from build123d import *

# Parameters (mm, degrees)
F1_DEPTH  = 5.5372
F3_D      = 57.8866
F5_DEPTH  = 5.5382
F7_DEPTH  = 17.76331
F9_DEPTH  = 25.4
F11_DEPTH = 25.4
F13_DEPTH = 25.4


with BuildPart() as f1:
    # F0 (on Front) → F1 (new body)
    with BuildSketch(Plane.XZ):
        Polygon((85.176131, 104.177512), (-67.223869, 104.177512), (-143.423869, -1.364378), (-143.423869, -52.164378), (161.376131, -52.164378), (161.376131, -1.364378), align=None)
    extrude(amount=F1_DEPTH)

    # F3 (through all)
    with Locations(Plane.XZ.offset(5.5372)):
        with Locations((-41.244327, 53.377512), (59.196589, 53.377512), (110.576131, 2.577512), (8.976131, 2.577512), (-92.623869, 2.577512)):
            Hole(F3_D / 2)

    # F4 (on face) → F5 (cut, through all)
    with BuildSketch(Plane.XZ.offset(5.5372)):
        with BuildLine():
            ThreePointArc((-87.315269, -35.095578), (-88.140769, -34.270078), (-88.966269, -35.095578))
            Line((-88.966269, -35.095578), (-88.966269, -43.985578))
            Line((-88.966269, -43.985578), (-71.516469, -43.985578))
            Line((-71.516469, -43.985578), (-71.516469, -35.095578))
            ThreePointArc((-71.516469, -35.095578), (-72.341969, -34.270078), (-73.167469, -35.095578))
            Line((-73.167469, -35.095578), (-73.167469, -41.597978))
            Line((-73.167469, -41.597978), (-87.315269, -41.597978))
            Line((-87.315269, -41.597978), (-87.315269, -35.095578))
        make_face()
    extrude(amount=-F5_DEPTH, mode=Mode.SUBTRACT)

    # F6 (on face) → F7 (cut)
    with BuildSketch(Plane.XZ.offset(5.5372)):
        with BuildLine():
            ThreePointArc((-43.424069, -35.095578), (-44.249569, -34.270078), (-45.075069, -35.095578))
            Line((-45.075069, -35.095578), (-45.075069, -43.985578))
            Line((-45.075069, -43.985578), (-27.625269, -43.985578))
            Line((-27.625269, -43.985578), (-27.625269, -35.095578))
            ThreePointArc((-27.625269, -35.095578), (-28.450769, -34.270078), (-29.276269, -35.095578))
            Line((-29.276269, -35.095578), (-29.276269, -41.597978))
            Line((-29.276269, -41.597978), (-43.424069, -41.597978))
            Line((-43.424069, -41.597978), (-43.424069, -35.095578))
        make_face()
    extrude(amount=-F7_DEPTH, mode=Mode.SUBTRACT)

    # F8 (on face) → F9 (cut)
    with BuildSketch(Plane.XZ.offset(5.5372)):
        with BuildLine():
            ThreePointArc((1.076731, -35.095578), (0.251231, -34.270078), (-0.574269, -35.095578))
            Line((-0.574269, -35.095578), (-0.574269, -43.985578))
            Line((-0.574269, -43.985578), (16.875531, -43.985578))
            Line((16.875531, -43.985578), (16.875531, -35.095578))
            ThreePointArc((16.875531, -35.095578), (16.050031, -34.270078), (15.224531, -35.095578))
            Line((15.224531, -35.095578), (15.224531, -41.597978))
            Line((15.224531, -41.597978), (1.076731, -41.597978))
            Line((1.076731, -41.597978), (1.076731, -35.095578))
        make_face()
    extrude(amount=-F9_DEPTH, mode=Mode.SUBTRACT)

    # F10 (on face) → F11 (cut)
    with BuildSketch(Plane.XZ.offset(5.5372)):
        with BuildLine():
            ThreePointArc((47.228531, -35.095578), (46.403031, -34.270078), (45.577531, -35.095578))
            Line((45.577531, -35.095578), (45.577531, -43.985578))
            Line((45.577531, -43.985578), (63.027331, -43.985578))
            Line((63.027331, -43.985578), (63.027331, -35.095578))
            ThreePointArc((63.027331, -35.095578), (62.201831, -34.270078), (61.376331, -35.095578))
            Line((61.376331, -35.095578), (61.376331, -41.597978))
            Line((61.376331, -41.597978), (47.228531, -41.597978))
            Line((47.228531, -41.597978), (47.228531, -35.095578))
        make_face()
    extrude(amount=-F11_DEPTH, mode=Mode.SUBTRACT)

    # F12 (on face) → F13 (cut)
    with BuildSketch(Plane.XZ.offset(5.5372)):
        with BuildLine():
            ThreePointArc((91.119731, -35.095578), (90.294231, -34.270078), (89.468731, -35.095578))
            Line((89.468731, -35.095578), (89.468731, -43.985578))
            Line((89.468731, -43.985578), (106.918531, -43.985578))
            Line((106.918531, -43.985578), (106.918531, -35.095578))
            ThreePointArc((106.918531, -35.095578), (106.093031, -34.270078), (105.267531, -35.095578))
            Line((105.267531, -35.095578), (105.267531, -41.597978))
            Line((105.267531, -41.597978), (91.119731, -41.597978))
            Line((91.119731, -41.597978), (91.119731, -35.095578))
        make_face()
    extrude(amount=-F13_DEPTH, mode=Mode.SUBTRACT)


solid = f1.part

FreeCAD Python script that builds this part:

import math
import FreeCAD as App
import Part
import Sketcher
Q = App.Units.Quantity


def add_polygon(sketch, points):
    """Adds a closed chain of lines whose ends are joined by coincident constraints."""
    first, n = sketch.GeometryCount, len(points)
    for a, b in zip(points, points[1:] + points[:1]):
        sketch.addGeometry(Part.LineSegment(App.Vector(*a, 0), App.Vector(*b, 0)), False)
    for i in range(n):
        sketch.addConstraint(Sketcher.Constraint("Coincident", first + i, 2, first + (i + 1) % n, 1))

doc = App.newDocument("Part")
body = doc.addObject("PartDesign::Body", "Body")

# Sketch on XZ plane
sketch1 = body.newObject("Sketcher::SketchObject", "Sketch")
sketch1.AttachmentSupport = (doc.getObject("XZ_Plane"), [""])
sketch1.MapMode = "FlatFace"
add_polygon(sketch1, [(85, 104), (-67, 104), (-143, -1), (-143, -52), (161, -52), (161, -1)])  # lines 0-5
sketch1.addConstraint(Sketcher.Constraint("Horizontal", 0))
sketch1.addConstraint(Sketcher.Constraint("Vertical", 2))
sketch1.addConstraint(Sketcher.Constraint("Horizontal", 3))
sketch1.addConstraint(Sketcher.Constraint("Vertical", 4))
sketch1.addConstraint(Sketcher.Constraint("Horizontal", 1, 2, 4, 2))
sketch1.addConstraint(Sketcher.Constraint("Equal", 1, 5))
sketch1.addConstraint(Sketcher.Constraint("DistanceX", 0, 2, 0, 1, Q("6 in")))
sketch1.addConstraint(Sketcher.Constraint("DistanceX", 3, 1, 3, 2, Q("12 in")))
sketch1.addConstraint(Sketcher.Constraint("DistanceY", 2, 2, 2, 1, Q("2 in")))
sketch1.addConstraint(Sketcher.Constraint("Distance", 1, Q("5.125 in")))
sketch1.addConstraint(Sketcher.Constraint("DistanceX", 0, 2, -1, 1, 67.223869))
sketch1.addConstraint(Sketcher.Constraint("DistanceY", -1, 1, 0, 2, 104.177512))
pad1 = body.newObject("PartDesign::Pad", "Pad")
pad1.Profile = sketch1
pad1.Length = Q("0.218 in")

# Sketch on XZ plane
sketch2 = body.newObject("Sketcher::SketchObject", "Sketch001")
sketch2.AttachmentSupport = (doc.getObject("XZ_Plane"), [""])
sketch2.MapMode = "FlatFace"
sketch2.AttachmentOffset = App.Placement(App.Vector(0, 0, 0.218 * 25.4), App.Rotation())
sketch2.addGeometry(Part.Circle(App.Vector(-41, 53, 0), App.Vector(0, 0, 1), 29), False)
sketch2.addGeometry(Part.Circle(App.Vector(59, 53, 0), App.Vector(0, 0, 1), 29), False)
sketch2.addGeometry(Part.Circle(App.Vector(111, 3, 0), App.Vector(0, 0, 1), 29), False)
sketch2.addGeometry(Part.Circle(App.Vector(9, 3, 0), App.Vector(0, 0, 1), 29), False)
sketch2.addGeometry(Part.Circle(App.Vector(-93, 3, 0), App.Vector(0, 0, 1), 29), False)
sketch2.addConstraint(Sketcher.Constraint("Equal", 0, 1))
sketch2.addConstraint(Sketcher.Constraint("Equal", 1, 2))
sketch2.addConstraint(Sketcher.Constraint("Equal", 2, 3))
sketch2.addConstraint(Sketcher.Constraint("Equal", 3, 4))
sketch2.addConstraint(Sketcher.Constraint("Horizontal", 0, 3, 1, 3))
sketch2.addConstraint(Sketcher.Constraint("Horizontal", 2, 3, 3, 3))
sketch2.addConstraint(Sketcher.Constraint("Horizontal", 3, 3, 4, 3))
sketch2.addConstraint(Sketcher.Constraint("Diameter", 0, Q("2.279 in")))
sketch2.addConstraint(Sketcher.Constraint("DistanceY", 2, 3, 1, 3, Q("2 in")))
sketch2.addConstraint(Sketcher.Constraint("DistanceX", 3, 3, 2, 3, Q("4 in")))
sketch2.addConstraint(Sketcher.Constraint("DistanceX", 4, 3, 3, 3, Q("4 in")))
sketch2.addConstraint(Sketcher.Constraint("DistanceX", -1, 1, 1, 3, 59.196589))
sketch2.addConstraint(Sketcher.Constraint("DistanceX", -1, 1, 2, 3, 110.576131))
sketch2.addConstraint(Sketcher.Constraint("DistanceY", -1, 1, 2, 3, 2.577512))
sketch2.addConstraint(Sketcher.Constraint("DistanceX", 0, 3, 2, 3, 151.820458))
doc.recompute()
hole = body.newObject("PartDesign::Hole", "Hole")
hole.Profile = sketch2
hole.ThreadType = "None"
hole.Diameter = Q("2.279 in")
hole.DepthType = "ThroughAll"

# Sketch on XZ plane
sketch3 = body.newObject("Sketcher::SketchObject", "Sketch002")
sketch3.AttachmentSupport = (doc.getObject("XZ_Plane"), [""])
sketch3.MapMode = "FlatFace"
sketch3.AttachmentOffset = App.Placement(App.Vector(0, 0, 0.218 * 25.4), App.Rotation())
sketch3.addGeometry(Part.ArcOfCircle(Part.Circle(App.Vector(-88.1, -35.1, 0), App.Vector(0, 0, 1), 0.8), math.radians(0), math.radians(180)), False)
sketch3.addGeometry(Part.LineSegment(App.Vector(-89, -35.1, 0), App.Vector(-89, -44, 0)), False)
sketch3.addGeometry(Part.LineSegment(App.Vector(-89, -44, 0), App.Vector(-71.5, -44, 0)), False)
sketch3.addGeometry(Part.LineSegment(App.Vector(-71.5, -44, 0), App.Vector(-71.5, -35.1, 0)), False)
sketch3.addGeometry(Part.ArcOfCircle(Part.Circle(App.Vector(-72.3, -35.1, 0), App.Vector(0, 0, 1), 0.8), math.radians(0), math.radians(180)), False)
sketch3.addGeometry(Part.LineSegment(App.Vector(-73.2, -35.1, 0), App.Vector(-73.2, -41.6, 0)), False)
sketch3.addGeometry(Part.LineSegment(App.Vector(-73.2, -41.6, 0), App.Vector(-87.3, -41.6, 0)), False)
sketch3.addGeometry(Part.LineSegment(App.Vector(-87.3, -41.6, 0), App.Vector(-87.3, -35.1, 0)), False)
sketch3.addConstraint(Sketcher.Constraint("Tangent", 0, 2, 1, 1))
sketch3.addConstraint(Sketcher.Constraint("Coincident", 1, 2, 2, 1))
sketch3.addConstraint(Sketcher.Constraint("Coincident", 2, 2, 3, 1))
sketch3.addConstraint(Sketcher.Constraint("Tangent", 3, 2, 4, 1))
sketch3.addConstraint(Sketcher.Constraint("Tangent", 4, 2, 5, 1))
sketch3.addConstraint(Sketcher.Constraint("Coincident", 5, 2, 6, 1))
sketch3.addConstraint(Sketcher.Constraint("Coincident", 6, 2, 7, 1))
sketch3.addConstraint(Sketcher.Constraint("Tangent", 7, 2, 0, 1))
sketch3.addConstraint(Sketcher.Constraint("Vertical", 1))
sketch3.addConstraint(Sketcher.Constraint("Horizontal", 2))
sketch3.addConstraint(Sketcher.Constraint("Vertical", 3))
sketch3.addConstraint(Sketcher.Constraint("Vertical", 5))
sketch3.addConstraint(Sketcher.Constraint("Horizontal", 6))
sketch3.addConstraint(Sketcher.Constraint("Vertical", 7))
sketch3.addConstraint(Sketcher.Constraint("Equal", 0, 4))
sketch3.addConstraint(Sketcher.Constraint("Horizontal", 0, 3, 4, 3))
sketch3.addConstraint(Sketcher.Constraint("DistanceY", 1, 2, 1, 1, Q("0.35 in")))
sketch3.addConstraint(Sketcher.Constraint("Radius", 0, Q("0.0325 in")))
sketch3.addConstraint(Sketcher.Constraint("DistanceX", 2, 1, 2, 2, Q("0.687 in")))
sketch3.addConstraint(Sketcher.Constraint("DistanceY", 5, 2, 5, 1, Q("0.256 in")))
sketch3.addConstraint(Sketcher.Constraint("DistanceX", 0, 3, -1, 1, 88.140769))
sketch3.addConstraint(Sketcher.Constraint("DistanceY", 0, 3, -1, 1, 35.095578))
pocket1 = body.newObject("PartDesign::Pocket", "Pocket")
pocket1.Profile = sketch3
pocket1.Type = "ThroughAll"

# Sketch on XZ plane
sketch4 = body.newObject("Sketcher::SketchObject", "Sketch003")
sketch4.AttachmentSupport = (doc.getObject("XZ_Plane"), [""])
sketch4.MapMode = "FlatFace"
sketch4.AttachmentOffset = App.Placement(App.Vector(0, 0, 0.218 * 25.4), App.Rotation())
sketch4.addGeometry(Part.ArcOfCircle(Part.Circle(App.Vector(-44.2, -35.1, 0), App.Vector(0, 0, 1), 0.8), math.radians(0), math.radians(180)), False)
sketch4.addGeometry(Part.LineSegment(App.Vector(-45.1, -35.1, 0), App.Vector(-45.1, -44, 0)), False)
sketch4.addGeometry(Part.LineSegment(App.Vector(-45.1, -44, 0), App.Vector(-27.6, -44, 0)), False)
sketch4.addGeometry(Part.LineSegment(App.Vector(-27.6, -44, 0), App.Vector(-27.6, -35.1, 0)), False)
sketch4.addGeometry(Part.ArcOfCircle(Part.Circle(App.Vector(-28.5, -35.1, 0), App.Vector(0, 0, 1), 0.8), math.radians(0), math.radians(180)), False)
sketch4.addGeometry(Part.LineSegment(App.Vector(-29.3, -35.1, 0), App.Vector(-29.3, -41.6, 0)), False)
sketch4.addGeometry(Part.LineSegment(App.Vector(-29.3, -41.6, 0), App.Vector(-43.4, -41.6, 0)), False)
sketch4.addGeometry(Part.LineSegment(App.Vector(-43.4, -41.6, 0), App.Vector(-43.4, -35.1, 0)), False)
sketch4.addConstraint(Sketcher.Constraint("Tangent", 0, 2, 1, 1))
sketch4.addConstraint(Sketcher.Constraint("Coincident", 1, 2, 2, 1))
sketch4.addConstraint(Sketcher.Constraint("Coincident", 2, 2, 3, 1))
sketch4.addConstraint(Sketcher.Constraint("Tangent", 3, 2, 4, 1))
sketch4.addConstraint(Sketcher.Constraint("Tangent", 4, 2, 5, 1))
sketch4.addConstraint(Sketcher.Constraint("Coincident", 5, 2, 6, 1))
sketch4.addConstraint(Sketcher.Constraint("Coincident", 6, 2, 7, 1))
sketch4.addConstraint(Sketcher.Constraint("Tangent", 7, 2, 0, 1))
sketch4.addConstraint(Sketcher.Constraint("Vertical", 1))
sketch4.addConstraint(Sketcher.Constraint("Horizontal", 2))
sketch4.addConstraint(Sketcher.Constraint("Vertical", 3))
sketch4.addConstraint(Sketcher.Constraint("Vertical", 5))
sketch4.addConstraint(Sketcher.Constraint("Horizontal", 6))
sketch4.addConstraint(Sketcher.Constraint("Vertical", 7))
sketch4.addConstraint(Sketcher.Constraint("Equal", 0, 4))
sketch4.addConstraint(Sketcher.Constraint("Horizontal", 0, 3, 4, 3))
sketch4.addConstraint(Sketcher.Constraint("DistanceY", 1, 2, 1, 1, Q("0.35 in")))
sketch4.addConstraint(Sketcher.Constraint("Radius", 0, Q("0.0325 in")))
sketch4.addConstraint(Sketcher.Constraint("DistanceX", 2, 1, 2, 2, Q("0.687 in")))
sketch4.addConstraint(Sketcher.Constraint("DistanceY", 5, 2, 5, 1, Q("0.256 in")))
sketch4.addConstraint(Sketcher.Constraint("DistanceX", 0, 3, -1, 1, 44.249569))
sketch4.addConstraint(Sketcher.Constraint("DistanceY", 0, 3, -1, 1, 35.095578))
pocket2 = body.newObject("PartDesign::Pocket", "Pocket001")
pocket2.Profile = sketch4
pocket2.Length = 17.76331

# Sketch on XZ plane
sketch5 = body.newObject("Sketcher::SketchObject", "Sketch004")
sketch5.AttachmentSupport = (doc.getObject("XZ_Plane"), [""])
sketch5.MapMode = "FlatFace"
sketch5.AttachmentOffset = App.Placement(App.Vector(0, 0, 0.218 * 25.4), App.Rotation())
sketch5.addGeometry(Part.ArcOfCircle(Part.Circle(App.Vector(0.3, -35.1, 0), App.Vector(0, 0, 1), 0.8), math.radians(0), math.radians(180)), False)
sketch5.addGeometry(Part.LineSegment(App.Vector(-0.6, -35.1, 0), App.Vector(-0.6, -44, 0)), False)
sketch5.addGeometry(Part.LineSegment(App.Vector(-0.6, -44, 0), App.Vector(16.9, -44, 0)), False)
sketch5.addGeometry(Part.LineSegment(App.Vector(16.9, -44, 0), App.Vector(16.9, -35.1, 0)), False)
sketch5.addGeometry(Part.ArcOfCircle(Part.Circle(App.Vector(16.1, -35.1, 0), App.Vector(0, 0, 1), 0.8), math.radians(0), math.radians(180)), False)
sketch5.addGeometry(Part.LineSegment(App.Vector(15.2, -35.1, 0), App.Vector(15.2, -41.6, 0)), False)
sketch5.addGeometry(Part.LineSegment(App.Vector(15.2, -41.6, 0), App.Vector(1.1, -41.6, 0)), False)
sketch5.addGeometry(Part.LineSegment(App.Vector(1.1, -41.6, 0), App.Vector(1.1, -35.1, 0)), False)
sketch5.addConstraint(Sketcher.Constraint("Tangent", 0, 2, 1, 1))
sketch5.addConstraint(Sketcher.Constraint("Coincident", 1, 2, 2, 1))
sketch5.addConstraint(Sketcher.Constraint("Coincident", 2, 2, 3, 1))
sketch5.addConstraint(Sketcher.Constraint("Tangent", 3, 2, 4, 1))
sketch5.addConstraint(Sketcher.Constraint("Tangent", 4, 2, 5, 1))
sketch5.addConstraint(Sketcher.Constraint("Coincident", 5, 2, 6, 1))
sketch5.addConstraint(Sketcher.Constraint("Coincident", 6, 2, 7, 1))
sketch5.addConstraint(Sketcher.Constraint("Tangent", 7, 2, 0, 1))
sketch5.addConstraint(Sketcher.Constraint("Vertical", 1))
sketch5.addConstraint(Sketcher.Constraint("Horizontal", 2))
sketch5.addConstraint(Sketcher.Constraint("Vertical", 3))
sketch5.addConstraint(Sketcher.Constraint("Vertical", 5))
sketch5.addConstraint(Sketcher.Constraint("Horizontal", 6))
sketch5.addConstraint(Sketcher.Constraint("Vertical", 7))
sketch5.addConstraint(Sketcher.Constraint("Equal", 0, 4))
sketch5.addConstraint(Sketcher.Constraint("Horizontal", 0, 3, 4, 3))
sketch5.addConstraint(Sketcher.Constraint("DistanceY", 1, 2, 1, 1, Q("0.35 in")))
sketch5.addConstraint(Sketcher.Constraint("Radius", 0, Q("0.0325 in")))
sketch5.addConstraint(Sketcher.Constraint("DistanceX", 2, 1, 2, 2, Q("0.687 in")))
sketch5.addConstraint(Sketcher.Constraint("DistanceY", 5, 2, 5, 1, Q("0.256 in")))
sketch5.addConstraint(Sketcher.Constraint("DistanceX", -1, 1, 0, 3, 0.251231))
sketch5.addConstraint(Sketcher.Constraint("DistanceY", 0, 3, -1, 1, 35.095578))
pocket3 = body.newObject("PartDesign::Pocket", "Pocket002")
pocket3.Profile = sketch5
pocket3.Length = Q("1 in")

# Sketch on XZ plane
sketch6 = body.newObject("Sketcher::SketchObject", "Sketch005")
sketch6.AttachmentSupport = (doc.getObject("XZ_Plane"), [""])
sketch6.MapMode = "FlatFace"
sketch6.AttachmentOffset = App.Placement(App.Vector(0, 0, 0.218 * 25.4), App.Rotation())
sketch6.addGeometry(Part.ArcOfCircle(Part.Circle(App.Vector(46.4, -35.1, 0), App.Vector(0, 0, 1), 0.8), math.radians(0), math.radians(180)), False)
sketch6.addGeometry(Part.LineSegment(App.Vector(45.6, -35.1, 0), App.Vector(45.6, -44, 0)), False)
sketch6.addGeometry(Part.LineSegment(App.Vector(45.6, -44, 0), App.Vector(63, -44, 0)), False)
sketch6.addGeometry(Part.LineSegment(App.Vector(63, -44, 0), App.Vector(63, -35.1, 0)), False)
sketch6.addGeometry(Part.ArcOfCircle(Part.Circle(App.Vector(62.2, -35.1, 0), App.Vector(0, 0, 1), 0.8), math.radians(0), math.radians(180)), False)
sketch6.addGeometry(Part.LineSegment(App.Vector(61.4, -35.1, 0), App.Vector(61.4, -41.6, 0)), False)
sketch6.addGeometry(Part.LineSegment(App.Vector(61.4, -41.6, 0), App.Vector(47.2, -41.6, 0)), False)
sketch6.addGeometry(Part.LineSegment(App.Vector(47.2, -41.6, 0), App.Vector(47.2, -35.1, 0)), False)
sketch6.addConstraint(Sketcher.Constraint("Tangent", 0, 2, 1, 1))
sketch6.addConstraint(Sketcher.Constraint("Coincident", 1, 2, 2, 1))
sketch6.addConstraint(Sketcher.Constraint("Coincident", 2, 2, 3, 1))
sketch6.addConstraint(Sketcher.Constraint("Tangent", 3, 2, 4, 1))
sketch6.addConstraint(Sketcher.Constraint("Tangent", 4, 2, 5, 1))
sketch6.addConstraint(Sketcher.Constraint("Coincident", 5, 2, 6, 1))
sketch6.addConstraint(Sketcher.Constraint("Coincident", 6, 2, 7, 1))
sketch6.addConstraint(Sketcher.Constraint("Tangent", 7, 2, 0, 1))
sketch6.addConstraint(Sketcher.Constraint("Vertical", 1))
sketch6.addConstraint(Sketcher.Constraint("Horizontal", 2))
sketch6.addConstraint(Sketcher.Constraint("Vertical", 3))
sketch6.addConstraint(Sketcher.Constraint("Vertical", 5))
sketch6.addConstraint(Sketcher.Constraint("Horizontal", 6))
sketch6.addConstraint(Sketcher.Constraint("Vertical", 7))
sketch6.addConstraint(Sketcher.Constraint("Equal", 0, 4))
sketch6.addConstraint(Sketcher.Constraint("Horizontal", 0, 3, 4, 3))
sketch6.addConstraint(Sketcher.Constraint("DistanceY", 1, 2, 1, 1, Q("0.35 in")))
sketch6.addConstraint(Sketcher.Constraint("Radius", 0, Q("0.0325 in")))
sketch6.addConstraint(Sketcher.Constraint("DistanceX", 2, 1, 2, 2, Q("0.687 in")))
sketch6.addConstraint(Sketcher.Constraint("DistanceY", 5, 2, 5, 1, Q("0.256 in")))
sketch6.addConstraint(Sketcher.Constraint("DistanceX", -1, 1, 0, 3, 46.403031))
sketch6.addConstraint(Sketcher.Constraint("DistanceY", 0, 3, -1, 1, 35.095578))
pocket4 = body.newObject("PartDesign::Pocket", "Pocket003")
pocket4.Profile = sketch6
pocket4.Length = Q("1 in")

# Sketch on XZ plane
sketch7 = body.newObject("Sketcher::SketchObject", "Sketch006")
sketch7.AttachmentSupport = (doc.getObject("XZ_Plane"), [""])
sketch7.MapMode = "FlatFace"
sketch7.AttachmentOffset = App.Placement(App.Vector(0, 0, 0.218 * 25.4), App.Rotation())
sketch7.addGeometry(Part.ArcOfCircle(Part.Circle(App.Vector(90.3, -35.1, 0), App.Vector(0, 0, 1), 0.8), math.radians(0), math.radians(180)), False)
sketch7.addGeometry(Part.LineSegment(App.Vector(89.5, -35.1, 0), App.Vector(89.5, -44, 0)), False)
sketch7.addGeometry(Part.LineSegment(App.Vector(89.5, -44, 0), App.Vector(106.9, -44, 0)), False)
sketch7.addGeometry(Part.LineSegment(App.Vector(106.9, -44, 0), App.Vector(106.9, -35.1, 0)), False)
sketch7.addGeometry(Part.ArcOfCircle(Part.Circle(App.Vector(106.1, -35.1, 0), App.Vector(0, 0, 1), 0.8), math.radians(0), math.radians(180)), False)
sketch7.addGeometry(Part.LineSegment(App.Vector(105.3, -35.1, 0), App.Vector(105.3, -41.6, 0)), False)
sketch7.addGeometry(Part.LineSegment(App.Vector(105.3, -41.6, 0), App.Vector(91.1, -41.6, 0)), False)
sketch7.addGeometry(Part.LineSegment(App.Vector(91.1, -41.6, 0), App.Vector(91.1, -35.1, 0)), False)
sketch7.addConstraint(Sketcher.Constraint("Tangent", 0, 2, 1, 1))
sketch7.addConstraint(Sketcher.Constraint("Coincident", 1, 2, 2, 1))
sketch7.addConstraint(Sketcher.Constraint("Coincident", 2, 2, 3, 1))
sketch7.addConstraint(Sketcher.Constraint("Tangent", 3, 2, 4, 1))
sketch7.addConstraint(Sketcher.Constraint("Tangent", 4, 2, 5, 1))
sketch7.addConstraint(Sketcher.Constraint("Coincident", 5, 2, 6, 1))
sketch7.addConstraint(Sketcher.Constraint("Coincident", 6, 2, 7, 1))
sketch7.addConstraint(Sketcher.Constraint("Tangent", 7, 2, 0, 1))
sketch7.addConstraint(Sketcher.Constraint("Vertical", 1))
sketch7.addConstraint(Sketcher.Constraint("Horizontal", 2))
sketch7.addConstraint(Sketcher.Constraint("Vertical", 3))
sketch7.addConstraint(Sketcher.Constraint("Vertical", 5))
sketch7.addConstraint(Sketcher.Constraint("Horizontal", 6))
sketch7.addConstraint(Sketcher.Constraint("Vertical", 7))
sketch7.addConstraint(Sketcher.Constraint("Equal", 0, 4))
sketch7.addConstraint(Sketcher.Constraint("Horizontal", 0, 3, 4, 3))
sketch7.addConstraint(Sketcher.Constraint("DistanceY", 1, 2, 1, 1, Q("0.35 in")))
sketch7.addConstraint(Sketcher.Constraint("Radius", 0, Q("0.0325 in")))
sketch7.addConstraint(Sketcher.Constraint("DistanceX", 2, 1, 2, 2, Q("0.687 in")))
sketch7.addConstraint(Sketcher.Constraint("DistanceY", 5, 2, 5, 1, Q("0.256 in")))
sketch7.addConstraint(Sketcher.Constraint("DistanceX", -1, 1, 0, 3, 90.294231))
sketch7.addConstraint(Sketcher.Constraint("DistanceY", 0, 3, -1, 1, 35.095578))
pocket5 = body.newObject("PartDesign::Pocket", "Pocket004")
pocket5.Profile = sketch7
pocket5.Length = Q("1 in")

doc.recompute()
